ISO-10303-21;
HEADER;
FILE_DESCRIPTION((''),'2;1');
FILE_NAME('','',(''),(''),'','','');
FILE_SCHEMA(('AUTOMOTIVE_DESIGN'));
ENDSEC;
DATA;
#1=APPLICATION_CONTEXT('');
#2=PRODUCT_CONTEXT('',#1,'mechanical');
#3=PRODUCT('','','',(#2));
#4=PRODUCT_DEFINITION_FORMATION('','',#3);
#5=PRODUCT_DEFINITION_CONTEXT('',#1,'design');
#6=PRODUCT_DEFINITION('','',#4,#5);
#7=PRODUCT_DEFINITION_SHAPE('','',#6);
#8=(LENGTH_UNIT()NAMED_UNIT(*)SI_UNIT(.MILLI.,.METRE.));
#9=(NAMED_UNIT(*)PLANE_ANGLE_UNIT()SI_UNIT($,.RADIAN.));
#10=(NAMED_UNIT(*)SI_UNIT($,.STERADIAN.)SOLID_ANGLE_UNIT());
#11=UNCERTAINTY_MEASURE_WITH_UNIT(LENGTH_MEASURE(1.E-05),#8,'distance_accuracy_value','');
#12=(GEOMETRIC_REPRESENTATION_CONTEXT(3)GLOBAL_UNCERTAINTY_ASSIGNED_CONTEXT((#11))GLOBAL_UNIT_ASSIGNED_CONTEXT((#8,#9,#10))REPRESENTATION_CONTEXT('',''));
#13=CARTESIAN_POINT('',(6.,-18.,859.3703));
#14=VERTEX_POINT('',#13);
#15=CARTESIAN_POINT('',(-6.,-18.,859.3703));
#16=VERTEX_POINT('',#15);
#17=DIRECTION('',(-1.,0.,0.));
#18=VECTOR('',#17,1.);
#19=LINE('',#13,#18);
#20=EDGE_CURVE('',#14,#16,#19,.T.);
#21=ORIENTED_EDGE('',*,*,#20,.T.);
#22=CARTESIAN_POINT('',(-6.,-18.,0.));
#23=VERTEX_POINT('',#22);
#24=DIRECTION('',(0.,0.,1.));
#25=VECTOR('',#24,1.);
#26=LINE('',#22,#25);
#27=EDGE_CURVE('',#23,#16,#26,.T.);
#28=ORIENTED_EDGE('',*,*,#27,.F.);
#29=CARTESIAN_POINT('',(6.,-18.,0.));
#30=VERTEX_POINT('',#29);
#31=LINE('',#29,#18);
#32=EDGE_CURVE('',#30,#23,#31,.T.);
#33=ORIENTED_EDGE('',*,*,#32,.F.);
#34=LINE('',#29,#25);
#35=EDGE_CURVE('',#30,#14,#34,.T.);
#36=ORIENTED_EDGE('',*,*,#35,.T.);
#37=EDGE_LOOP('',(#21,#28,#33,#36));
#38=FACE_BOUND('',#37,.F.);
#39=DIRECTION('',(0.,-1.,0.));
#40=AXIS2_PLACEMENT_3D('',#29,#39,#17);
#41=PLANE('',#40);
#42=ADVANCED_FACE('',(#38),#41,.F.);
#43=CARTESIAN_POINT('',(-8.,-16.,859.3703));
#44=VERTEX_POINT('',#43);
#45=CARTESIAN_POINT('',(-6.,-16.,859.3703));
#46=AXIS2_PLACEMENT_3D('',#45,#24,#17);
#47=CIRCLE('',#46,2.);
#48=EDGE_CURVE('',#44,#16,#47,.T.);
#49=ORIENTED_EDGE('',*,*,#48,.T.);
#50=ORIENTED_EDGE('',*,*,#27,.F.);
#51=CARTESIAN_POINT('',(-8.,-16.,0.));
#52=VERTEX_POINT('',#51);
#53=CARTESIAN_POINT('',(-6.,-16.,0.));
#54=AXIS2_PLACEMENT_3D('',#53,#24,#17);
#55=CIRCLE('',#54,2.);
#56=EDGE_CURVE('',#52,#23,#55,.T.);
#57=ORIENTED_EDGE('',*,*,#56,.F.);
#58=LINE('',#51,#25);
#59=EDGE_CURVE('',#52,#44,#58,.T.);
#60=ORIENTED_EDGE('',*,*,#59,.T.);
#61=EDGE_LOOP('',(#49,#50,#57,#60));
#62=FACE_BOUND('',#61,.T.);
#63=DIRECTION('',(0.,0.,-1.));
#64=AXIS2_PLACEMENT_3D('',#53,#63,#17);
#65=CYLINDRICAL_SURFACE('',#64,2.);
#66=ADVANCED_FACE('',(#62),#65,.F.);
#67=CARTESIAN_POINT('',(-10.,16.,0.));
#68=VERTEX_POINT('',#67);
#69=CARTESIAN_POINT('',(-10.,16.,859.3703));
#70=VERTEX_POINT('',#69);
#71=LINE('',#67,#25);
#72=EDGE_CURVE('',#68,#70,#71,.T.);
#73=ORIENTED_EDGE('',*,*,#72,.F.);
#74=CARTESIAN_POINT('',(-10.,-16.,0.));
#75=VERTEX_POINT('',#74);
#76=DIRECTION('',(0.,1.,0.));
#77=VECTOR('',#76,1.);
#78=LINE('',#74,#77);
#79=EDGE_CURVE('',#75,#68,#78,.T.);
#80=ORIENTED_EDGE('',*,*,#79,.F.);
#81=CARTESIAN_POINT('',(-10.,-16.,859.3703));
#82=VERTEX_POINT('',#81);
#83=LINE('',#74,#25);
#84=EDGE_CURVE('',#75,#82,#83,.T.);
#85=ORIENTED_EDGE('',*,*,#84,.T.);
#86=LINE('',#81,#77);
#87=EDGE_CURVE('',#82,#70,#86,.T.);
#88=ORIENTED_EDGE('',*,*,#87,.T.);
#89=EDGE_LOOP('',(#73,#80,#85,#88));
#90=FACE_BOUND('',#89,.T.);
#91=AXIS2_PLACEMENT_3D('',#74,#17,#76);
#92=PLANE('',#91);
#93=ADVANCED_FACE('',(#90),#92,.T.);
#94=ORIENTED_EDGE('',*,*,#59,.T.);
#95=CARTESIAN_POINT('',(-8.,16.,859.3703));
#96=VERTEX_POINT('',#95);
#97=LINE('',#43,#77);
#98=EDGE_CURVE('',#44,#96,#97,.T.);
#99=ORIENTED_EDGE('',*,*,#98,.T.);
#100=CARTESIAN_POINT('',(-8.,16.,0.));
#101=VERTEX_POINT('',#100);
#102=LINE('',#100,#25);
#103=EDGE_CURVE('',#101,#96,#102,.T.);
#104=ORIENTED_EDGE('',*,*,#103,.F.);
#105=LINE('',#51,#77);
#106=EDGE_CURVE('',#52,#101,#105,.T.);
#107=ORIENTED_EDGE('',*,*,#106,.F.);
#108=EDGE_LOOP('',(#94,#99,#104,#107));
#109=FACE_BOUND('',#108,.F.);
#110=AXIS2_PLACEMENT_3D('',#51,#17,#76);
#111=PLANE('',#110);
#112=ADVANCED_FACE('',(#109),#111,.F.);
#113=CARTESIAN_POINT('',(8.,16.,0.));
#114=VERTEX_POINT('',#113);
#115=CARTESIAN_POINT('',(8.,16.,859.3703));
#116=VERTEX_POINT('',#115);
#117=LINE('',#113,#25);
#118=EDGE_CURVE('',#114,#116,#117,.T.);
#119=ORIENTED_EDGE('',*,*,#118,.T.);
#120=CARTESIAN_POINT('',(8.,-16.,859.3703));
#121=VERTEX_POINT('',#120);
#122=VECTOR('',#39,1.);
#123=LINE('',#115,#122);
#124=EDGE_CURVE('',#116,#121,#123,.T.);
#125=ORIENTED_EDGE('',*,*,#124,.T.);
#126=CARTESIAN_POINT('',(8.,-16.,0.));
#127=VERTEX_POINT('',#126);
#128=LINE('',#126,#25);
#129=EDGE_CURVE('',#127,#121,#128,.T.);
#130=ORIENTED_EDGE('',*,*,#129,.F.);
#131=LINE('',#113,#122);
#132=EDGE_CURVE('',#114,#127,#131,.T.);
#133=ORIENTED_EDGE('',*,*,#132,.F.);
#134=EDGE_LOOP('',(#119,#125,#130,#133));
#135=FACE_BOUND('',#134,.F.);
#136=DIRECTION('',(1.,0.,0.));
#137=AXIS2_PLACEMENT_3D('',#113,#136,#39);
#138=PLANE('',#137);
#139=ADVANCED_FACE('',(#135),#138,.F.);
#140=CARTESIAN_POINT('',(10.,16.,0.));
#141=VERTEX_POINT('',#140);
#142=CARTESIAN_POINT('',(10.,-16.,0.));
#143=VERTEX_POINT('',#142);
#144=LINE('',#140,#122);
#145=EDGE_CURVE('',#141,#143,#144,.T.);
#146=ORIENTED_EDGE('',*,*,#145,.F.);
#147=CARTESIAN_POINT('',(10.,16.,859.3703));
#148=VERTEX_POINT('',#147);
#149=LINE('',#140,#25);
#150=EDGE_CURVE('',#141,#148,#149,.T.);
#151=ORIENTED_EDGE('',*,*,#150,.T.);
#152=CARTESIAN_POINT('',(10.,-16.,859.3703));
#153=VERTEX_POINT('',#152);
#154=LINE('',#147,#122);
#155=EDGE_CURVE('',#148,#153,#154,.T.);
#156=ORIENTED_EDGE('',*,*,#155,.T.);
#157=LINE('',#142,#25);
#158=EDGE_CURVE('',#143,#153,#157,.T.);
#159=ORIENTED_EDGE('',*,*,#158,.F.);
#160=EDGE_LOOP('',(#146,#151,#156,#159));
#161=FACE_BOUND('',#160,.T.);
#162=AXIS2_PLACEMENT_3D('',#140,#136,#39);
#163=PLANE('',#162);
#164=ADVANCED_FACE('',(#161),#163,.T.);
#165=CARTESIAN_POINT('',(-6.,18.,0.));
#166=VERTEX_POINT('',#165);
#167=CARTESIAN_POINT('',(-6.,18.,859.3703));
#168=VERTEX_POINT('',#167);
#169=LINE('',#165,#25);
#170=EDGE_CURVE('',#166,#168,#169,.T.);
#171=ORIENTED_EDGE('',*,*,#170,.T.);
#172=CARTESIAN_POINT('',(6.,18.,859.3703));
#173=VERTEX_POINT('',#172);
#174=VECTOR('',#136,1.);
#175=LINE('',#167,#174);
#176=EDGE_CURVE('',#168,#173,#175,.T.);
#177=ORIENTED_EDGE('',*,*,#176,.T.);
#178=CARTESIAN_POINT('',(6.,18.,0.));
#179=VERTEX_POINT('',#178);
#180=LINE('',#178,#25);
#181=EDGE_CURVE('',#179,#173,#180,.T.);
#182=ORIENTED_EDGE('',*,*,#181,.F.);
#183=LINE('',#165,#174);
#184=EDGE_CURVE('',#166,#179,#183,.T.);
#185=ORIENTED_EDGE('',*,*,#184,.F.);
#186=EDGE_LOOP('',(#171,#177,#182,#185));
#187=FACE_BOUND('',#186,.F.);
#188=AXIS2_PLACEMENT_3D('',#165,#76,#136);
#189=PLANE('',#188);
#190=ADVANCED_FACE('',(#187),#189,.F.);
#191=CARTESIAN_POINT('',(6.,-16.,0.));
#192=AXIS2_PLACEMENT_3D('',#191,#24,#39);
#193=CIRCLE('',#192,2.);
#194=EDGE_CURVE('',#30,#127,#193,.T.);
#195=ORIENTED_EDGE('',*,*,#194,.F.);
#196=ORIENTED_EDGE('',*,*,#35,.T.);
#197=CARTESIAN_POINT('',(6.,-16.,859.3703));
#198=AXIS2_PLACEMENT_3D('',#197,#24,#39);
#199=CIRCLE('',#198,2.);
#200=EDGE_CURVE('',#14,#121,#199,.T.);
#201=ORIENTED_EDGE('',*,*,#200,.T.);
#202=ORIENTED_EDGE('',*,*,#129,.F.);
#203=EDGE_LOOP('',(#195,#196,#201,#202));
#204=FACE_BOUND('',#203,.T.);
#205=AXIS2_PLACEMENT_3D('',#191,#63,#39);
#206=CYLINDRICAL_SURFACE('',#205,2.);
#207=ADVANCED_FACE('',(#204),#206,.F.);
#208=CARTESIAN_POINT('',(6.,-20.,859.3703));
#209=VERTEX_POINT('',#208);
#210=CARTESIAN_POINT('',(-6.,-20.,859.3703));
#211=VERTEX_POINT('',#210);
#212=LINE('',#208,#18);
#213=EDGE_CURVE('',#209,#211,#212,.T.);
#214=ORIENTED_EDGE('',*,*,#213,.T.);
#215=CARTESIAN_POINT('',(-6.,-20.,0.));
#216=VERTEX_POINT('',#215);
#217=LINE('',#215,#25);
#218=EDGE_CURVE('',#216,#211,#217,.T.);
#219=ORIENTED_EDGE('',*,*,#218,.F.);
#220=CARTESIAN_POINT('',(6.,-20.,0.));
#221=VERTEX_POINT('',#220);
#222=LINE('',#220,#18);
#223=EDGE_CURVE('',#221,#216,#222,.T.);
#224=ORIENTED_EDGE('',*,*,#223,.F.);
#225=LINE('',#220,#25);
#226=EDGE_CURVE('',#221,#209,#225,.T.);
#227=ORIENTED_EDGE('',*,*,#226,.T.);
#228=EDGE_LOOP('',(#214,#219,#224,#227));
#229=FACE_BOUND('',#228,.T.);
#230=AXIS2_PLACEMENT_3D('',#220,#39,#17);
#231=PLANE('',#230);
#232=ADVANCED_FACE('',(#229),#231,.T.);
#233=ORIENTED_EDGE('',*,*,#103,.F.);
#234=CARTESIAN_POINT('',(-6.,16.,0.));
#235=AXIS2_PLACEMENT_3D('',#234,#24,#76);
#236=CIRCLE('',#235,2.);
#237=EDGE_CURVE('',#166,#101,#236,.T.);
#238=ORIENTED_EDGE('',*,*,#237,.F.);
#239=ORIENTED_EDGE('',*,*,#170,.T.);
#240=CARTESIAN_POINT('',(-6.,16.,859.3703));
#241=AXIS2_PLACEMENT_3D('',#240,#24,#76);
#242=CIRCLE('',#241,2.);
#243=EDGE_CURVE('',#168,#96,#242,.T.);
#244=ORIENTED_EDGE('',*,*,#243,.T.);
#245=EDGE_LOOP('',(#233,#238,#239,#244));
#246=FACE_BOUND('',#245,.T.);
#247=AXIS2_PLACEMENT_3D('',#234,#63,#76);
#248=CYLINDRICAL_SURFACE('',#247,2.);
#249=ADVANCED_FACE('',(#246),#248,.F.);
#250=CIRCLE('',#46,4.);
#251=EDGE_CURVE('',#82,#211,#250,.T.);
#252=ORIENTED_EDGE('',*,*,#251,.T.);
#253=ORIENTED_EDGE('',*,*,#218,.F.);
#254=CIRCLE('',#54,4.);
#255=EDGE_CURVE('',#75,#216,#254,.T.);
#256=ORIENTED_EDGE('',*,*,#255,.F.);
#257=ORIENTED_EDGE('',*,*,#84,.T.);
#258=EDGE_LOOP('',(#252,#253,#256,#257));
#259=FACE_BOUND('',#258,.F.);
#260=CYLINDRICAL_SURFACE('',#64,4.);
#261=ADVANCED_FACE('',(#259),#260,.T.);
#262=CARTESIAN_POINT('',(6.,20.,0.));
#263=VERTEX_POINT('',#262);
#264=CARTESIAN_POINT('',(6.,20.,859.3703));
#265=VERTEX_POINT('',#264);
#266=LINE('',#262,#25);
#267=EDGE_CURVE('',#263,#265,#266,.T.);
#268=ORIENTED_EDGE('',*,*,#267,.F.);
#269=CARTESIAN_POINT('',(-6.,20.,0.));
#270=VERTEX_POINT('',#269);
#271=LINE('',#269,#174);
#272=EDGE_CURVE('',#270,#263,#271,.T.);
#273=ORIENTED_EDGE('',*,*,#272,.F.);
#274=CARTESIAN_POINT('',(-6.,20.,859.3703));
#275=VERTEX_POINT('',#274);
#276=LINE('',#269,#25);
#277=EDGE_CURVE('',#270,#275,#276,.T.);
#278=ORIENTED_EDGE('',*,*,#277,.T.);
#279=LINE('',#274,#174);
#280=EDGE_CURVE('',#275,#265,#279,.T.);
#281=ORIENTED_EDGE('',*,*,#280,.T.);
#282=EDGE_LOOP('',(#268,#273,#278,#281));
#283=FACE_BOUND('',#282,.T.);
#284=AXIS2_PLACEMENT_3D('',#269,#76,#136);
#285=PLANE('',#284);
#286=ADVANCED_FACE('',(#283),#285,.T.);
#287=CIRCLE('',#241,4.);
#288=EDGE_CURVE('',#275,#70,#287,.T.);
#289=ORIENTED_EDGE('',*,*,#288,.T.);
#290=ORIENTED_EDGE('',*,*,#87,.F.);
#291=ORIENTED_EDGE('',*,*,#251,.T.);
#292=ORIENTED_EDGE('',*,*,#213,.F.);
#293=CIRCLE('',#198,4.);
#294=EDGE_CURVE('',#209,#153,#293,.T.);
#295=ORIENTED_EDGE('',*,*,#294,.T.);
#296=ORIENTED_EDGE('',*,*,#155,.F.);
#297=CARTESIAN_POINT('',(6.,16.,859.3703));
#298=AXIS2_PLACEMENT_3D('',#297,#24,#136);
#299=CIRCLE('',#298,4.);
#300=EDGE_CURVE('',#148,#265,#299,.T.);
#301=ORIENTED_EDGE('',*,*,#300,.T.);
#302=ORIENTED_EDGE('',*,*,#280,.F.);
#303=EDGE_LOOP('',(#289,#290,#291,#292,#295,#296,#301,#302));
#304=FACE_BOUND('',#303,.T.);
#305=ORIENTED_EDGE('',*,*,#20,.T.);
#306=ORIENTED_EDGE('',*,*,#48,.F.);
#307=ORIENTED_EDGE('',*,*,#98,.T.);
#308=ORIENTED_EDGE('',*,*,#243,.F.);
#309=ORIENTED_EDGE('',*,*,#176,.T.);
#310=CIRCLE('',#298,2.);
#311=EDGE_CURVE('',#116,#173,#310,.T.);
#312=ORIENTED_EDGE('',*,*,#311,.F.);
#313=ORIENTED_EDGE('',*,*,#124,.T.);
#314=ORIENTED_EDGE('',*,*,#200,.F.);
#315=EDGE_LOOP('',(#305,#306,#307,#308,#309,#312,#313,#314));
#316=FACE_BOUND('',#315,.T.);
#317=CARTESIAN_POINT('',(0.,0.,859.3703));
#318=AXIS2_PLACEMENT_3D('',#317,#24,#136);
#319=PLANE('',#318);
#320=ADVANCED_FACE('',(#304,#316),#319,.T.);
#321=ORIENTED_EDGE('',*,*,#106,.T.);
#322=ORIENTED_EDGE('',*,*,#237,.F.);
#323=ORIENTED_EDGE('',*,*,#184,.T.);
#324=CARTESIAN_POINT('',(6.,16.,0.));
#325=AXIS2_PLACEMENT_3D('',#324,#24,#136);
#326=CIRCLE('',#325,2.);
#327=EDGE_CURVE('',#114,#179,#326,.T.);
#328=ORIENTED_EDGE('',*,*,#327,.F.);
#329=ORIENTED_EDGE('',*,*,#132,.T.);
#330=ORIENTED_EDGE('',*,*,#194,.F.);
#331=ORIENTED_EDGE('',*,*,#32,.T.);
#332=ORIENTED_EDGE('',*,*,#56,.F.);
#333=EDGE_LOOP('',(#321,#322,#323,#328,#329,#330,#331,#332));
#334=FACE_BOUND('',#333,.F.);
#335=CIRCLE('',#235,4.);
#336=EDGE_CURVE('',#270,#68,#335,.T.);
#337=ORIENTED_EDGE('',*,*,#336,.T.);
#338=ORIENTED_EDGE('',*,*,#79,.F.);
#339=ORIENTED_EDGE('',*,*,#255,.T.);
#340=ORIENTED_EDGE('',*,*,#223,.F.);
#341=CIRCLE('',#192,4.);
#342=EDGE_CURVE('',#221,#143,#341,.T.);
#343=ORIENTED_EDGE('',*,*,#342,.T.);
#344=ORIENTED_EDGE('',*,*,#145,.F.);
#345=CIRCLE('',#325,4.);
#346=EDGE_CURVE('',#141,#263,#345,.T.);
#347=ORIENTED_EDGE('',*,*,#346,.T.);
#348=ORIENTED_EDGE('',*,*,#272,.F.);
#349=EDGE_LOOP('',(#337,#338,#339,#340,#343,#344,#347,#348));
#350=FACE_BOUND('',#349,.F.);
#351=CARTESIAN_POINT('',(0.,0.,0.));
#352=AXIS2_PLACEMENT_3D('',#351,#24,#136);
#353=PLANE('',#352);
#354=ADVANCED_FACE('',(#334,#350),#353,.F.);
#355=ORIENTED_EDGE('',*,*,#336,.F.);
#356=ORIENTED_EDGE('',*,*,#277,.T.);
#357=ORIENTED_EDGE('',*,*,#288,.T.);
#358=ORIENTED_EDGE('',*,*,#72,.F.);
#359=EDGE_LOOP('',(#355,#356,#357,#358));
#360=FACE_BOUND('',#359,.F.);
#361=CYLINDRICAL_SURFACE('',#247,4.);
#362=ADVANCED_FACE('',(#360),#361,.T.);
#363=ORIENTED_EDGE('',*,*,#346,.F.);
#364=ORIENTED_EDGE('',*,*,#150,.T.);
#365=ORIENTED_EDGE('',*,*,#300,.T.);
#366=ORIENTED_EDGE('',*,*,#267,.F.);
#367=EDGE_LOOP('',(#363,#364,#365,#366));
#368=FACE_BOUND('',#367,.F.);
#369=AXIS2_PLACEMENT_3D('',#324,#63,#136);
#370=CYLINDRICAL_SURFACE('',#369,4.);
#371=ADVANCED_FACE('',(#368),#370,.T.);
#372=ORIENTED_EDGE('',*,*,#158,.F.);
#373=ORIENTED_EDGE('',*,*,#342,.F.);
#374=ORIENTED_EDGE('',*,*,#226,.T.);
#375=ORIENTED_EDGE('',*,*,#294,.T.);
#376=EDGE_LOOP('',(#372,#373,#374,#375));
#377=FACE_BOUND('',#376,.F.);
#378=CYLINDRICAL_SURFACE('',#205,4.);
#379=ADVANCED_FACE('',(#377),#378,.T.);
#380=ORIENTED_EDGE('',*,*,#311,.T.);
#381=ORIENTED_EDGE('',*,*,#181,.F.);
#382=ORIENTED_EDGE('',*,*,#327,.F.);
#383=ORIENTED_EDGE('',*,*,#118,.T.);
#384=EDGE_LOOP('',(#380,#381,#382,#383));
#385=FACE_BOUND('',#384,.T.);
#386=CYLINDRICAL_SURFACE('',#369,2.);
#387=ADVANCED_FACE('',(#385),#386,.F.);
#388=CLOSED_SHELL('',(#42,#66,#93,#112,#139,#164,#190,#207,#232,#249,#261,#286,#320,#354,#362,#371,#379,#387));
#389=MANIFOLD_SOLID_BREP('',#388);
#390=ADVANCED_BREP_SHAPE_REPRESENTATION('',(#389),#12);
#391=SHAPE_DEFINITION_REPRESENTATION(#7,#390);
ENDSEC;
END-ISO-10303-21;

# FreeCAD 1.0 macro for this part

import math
import FreeCAD as App
import Part
import Sketcher

V = App.Vector

doc = App.newDocument("Part")
params = doc.addObject("Spreadsheet::Sheet", "Params")
for row, (alias, value) in enumerate([
    ("sketch1_radius", "4 mm"),
    ("sketch1_radius2", "2 mm"),
    ("pad1_length", "859.3703 mm"),
], start=1):
    params.set(f"A{row}", alias)
    params.set(f"B{row}", "=" + value)
    params.setAlias(f"B{row}", alias)

body = doc.addObject("PartDesign::Body", "Body")

# Sketch on XY plane
sketch1 = body.newObject("Sketcher::SketchObject", "Sketch")
sketch1.AttachmentSupport = (doc.getObject("XY_Plane"), [""])
sketch1.MapMode = "FlatFace"
sketch1.addGeometry([
    Part.LineSegment(V(-10, 16, 0), V(-10, -16, 0)),  # 0
    Part.ArcOfCircle(Part.Circle(V(-6, -16, 0), V(0, 0, 1), 4), math.radians(180), math.radians(270)),  # 1
    Part.LineSegment(V(-6, -20, 0), V(6, -20, 0)),  # 2
    Part.ArcOfCircle(Part.Circle(V(6, -16, 0), V(0, 0, 1), 4), math.radians(-90), math.radians(0)),  # 3
    Part.LineSegment(V(10, -16, 0), V(10, 16, 0)),  # 4
    Part.ArcOfCircle(Part.Circle(V(6, 16, 0), V(0, 0, 1), 4), math.radians(0), math.radians(90)),  # 5
    Part.LineSegment(V(6, 20, 0), V(-6, 20, 0)),  # 6
    Part.ArcOfCircle(Part.Circle(V(-6, 16, 0), V(0, 0, 1), 4), math.radians(90), math.radians(180)),  # 7
    Part.ArcOfCircle(Part.Circle(V(-6, 16, 0), V(0, 0, 1), 2), math.radians(90), math.radians(180)),  # 8
    Part.LineSegment(V(-6, 18, 0), V(6, 18, 0)),  # 9
    Part.ArcOfCircle(Part.Circle(V(6, 16, 0), V(0, 0, 1), 2), math.radians(0), math.radians(90)),  # 10
    Part.LineSegment(V(8, 16, 0), V(8, -16, 0)),  # 11
    Part.ArcOfCircle(Part.Circle(V(6, -16, 0), V(0, 0, 1), 2), math.radians(-90), math.radians(0)),  # 12
    Part.LineSegment(V(6, -18, 0), V(-6, -18, 0)),  # 13
    Part.ArcOfCircle(Part.Circle(V(-6, -16, 0), V(0, 0, 1), 2), math.radians(180), math.radians(270)),  # 14
    Part.LineSegment(V(-8, -16, 0), V(-8, 16, 0)),  # 15
], False)
sketch1.addConstraint([
    Sketcher.Constraint("Tangent", 0, 2, 1, 1),
    Sketcher.Constraint("Tangent", 1, 2, 2, 1),
    Sketcher.Constraint("Tangent", 2, 2, 3, 1),
    Sketcher.Constraint("Tangent", 3, 2, 4, 1),
    Sketcher.Constraint("Tangent", 4, 2, 5, 1),
    Sketcher.Constraint("Tangent", 5, 2, 6, 1),
    Sketcher.Constraint("Tangent", 6, 2, 7, 1),
    Sketcher.Constraint("Tangent", 7, 2, 0, 1),
    Sketcher.Constraint("Tangent", 8, 1, 9, 1),
    Sketcher.Constraint("Tangent", 9, 2, 10, 2),
    Sketcher.Constraint("Tangent", 10, 1, 11, 1),
    Sketcher.Constraint("Tangent", 11, 2, 12, 2),
    Sketcher.Constraint("Tangent", 12, 1, 13, 1),
    Sketcher.Constraint("Tangent", 13, 2, 14, 2),
    Sketcher.Constraint("Tangent", 14, 1, 15, 1),
    Sketcher.Constraint("Tangent", 15, 2, 8, 2),
    Sketcher.Constraint("Vertical", 0),
    Sketcher.Constraint("Horizontal", 2),
    Sketcher.Constraint("Vertical", 4),
    Sketcher.Constraint("Horizontal", 6),
    Sketcher.Constraint("Horizontal", 9),
    Sketcher.Constraint("Vertical", 11),
    Sketcher.Constraint("Horizontal", 13),
    Sketcher.Constraint("Vertical", 15),
    Sketcher.Constraint("Coincident", 8, 3, 7, 3),
    Sketcher.Constraint("Coincident", 10, 3, 5, 3),
    Sketcher.Constraint("Coincident", 12, 3, 3, 3),
    Sketcher.Constraint("Equal", 1, 3),
    Sketcher.Constraint("Equal", 3, 5),
    Sketcher.Constraint("Equal", 5, 7),
    Sketcher.Constraint("Equal", 12, 14),
    Sketcher.Constraint("Symmetric", 1, 3, 5, 3, -1, 1),
    Sketcher.Constraint("Radius", 1, 4.0),
    Sketcher.Constraint("Radius", 8, 2.0),
    Sketcher.Constraint("DistanceX", 0, 2, -1, 1, 10.0),
    Sketcher.Constraint("DistanceY", 1, 2, -1, 1, 20.0),
])
sketch1.setExpression("Constraints[32]", "Params.sketch1_radius")
sketch1.setExpression("Constraints[33]", "Params.sketch1_radius2")
pad1 = body.newObject("PartDesign::Pad", "Pad")
pad1.Profile = sketch1
pad1.setExpression("Length", "Params.pad1_length")

doc.recompute()
